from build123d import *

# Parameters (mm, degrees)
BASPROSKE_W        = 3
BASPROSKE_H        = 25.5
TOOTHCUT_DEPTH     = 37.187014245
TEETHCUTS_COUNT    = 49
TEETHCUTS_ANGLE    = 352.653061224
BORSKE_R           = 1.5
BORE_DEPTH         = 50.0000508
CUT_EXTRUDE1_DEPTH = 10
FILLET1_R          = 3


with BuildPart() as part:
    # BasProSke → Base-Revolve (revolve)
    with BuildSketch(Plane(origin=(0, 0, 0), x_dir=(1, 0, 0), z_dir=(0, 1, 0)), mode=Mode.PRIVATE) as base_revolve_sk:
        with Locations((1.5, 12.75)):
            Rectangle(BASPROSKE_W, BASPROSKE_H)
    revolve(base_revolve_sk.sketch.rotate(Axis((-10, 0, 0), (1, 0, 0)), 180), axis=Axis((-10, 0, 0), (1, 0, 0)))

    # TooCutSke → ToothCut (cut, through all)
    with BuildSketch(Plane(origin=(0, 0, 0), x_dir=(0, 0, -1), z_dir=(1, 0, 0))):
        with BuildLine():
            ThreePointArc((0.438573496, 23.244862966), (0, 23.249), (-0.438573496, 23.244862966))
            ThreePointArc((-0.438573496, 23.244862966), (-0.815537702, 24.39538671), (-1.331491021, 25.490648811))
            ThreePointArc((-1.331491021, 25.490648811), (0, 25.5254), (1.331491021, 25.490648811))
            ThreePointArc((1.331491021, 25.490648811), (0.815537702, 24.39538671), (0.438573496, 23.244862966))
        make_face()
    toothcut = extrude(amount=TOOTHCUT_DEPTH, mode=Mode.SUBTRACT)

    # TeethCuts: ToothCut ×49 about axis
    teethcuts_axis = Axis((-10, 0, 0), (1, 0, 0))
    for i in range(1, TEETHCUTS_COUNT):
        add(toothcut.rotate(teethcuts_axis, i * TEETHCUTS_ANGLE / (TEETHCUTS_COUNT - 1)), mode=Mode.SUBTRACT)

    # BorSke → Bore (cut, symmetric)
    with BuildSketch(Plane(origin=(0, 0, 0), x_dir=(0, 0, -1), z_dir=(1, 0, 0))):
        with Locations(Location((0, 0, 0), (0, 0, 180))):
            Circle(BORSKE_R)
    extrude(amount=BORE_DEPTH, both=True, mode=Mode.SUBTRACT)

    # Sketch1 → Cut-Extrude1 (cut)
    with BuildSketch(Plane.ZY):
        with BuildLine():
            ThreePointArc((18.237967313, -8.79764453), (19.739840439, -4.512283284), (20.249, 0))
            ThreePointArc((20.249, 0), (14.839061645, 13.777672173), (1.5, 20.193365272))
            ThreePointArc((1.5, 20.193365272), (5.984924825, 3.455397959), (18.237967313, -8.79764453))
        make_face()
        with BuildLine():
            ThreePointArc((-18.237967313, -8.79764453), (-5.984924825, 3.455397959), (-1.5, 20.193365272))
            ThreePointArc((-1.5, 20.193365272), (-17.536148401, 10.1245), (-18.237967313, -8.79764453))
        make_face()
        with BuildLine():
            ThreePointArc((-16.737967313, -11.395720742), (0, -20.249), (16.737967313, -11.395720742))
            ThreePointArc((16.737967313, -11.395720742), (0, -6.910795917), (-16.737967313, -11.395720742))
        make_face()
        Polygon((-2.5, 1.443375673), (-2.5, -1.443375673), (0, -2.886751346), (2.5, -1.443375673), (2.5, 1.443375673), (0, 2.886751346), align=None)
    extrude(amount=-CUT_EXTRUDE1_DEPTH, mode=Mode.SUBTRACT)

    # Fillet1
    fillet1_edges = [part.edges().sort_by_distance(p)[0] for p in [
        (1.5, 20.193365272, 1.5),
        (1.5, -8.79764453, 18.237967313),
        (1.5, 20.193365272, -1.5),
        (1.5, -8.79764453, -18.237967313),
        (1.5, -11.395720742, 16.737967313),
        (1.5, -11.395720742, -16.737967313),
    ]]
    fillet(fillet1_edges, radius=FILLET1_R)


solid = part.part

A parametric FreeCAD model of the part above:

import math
import FreeCAD as App
import Part
import Sketcher
from FreeCAD import Vector
Q = App.Units.Quantity


def edges_at(feature, points):
    """Names of the edges that pass closest to the given points."""
    edges = feature.Shape.Edges
    near = lambda p: min(range(len(edges)), key=lambda i: edges[i].distToShape(Part.Vertex(*p))[0])
    return sorted({f"Edge{near(p) + 1}" for p in points})

doc = App.newDocument("Part")
body = doc.addObject("PartDesign::Body", "Body")

sketch1 = body.newObject("Sketcher::SketchObject", "Sketch")
sketch1.AttachmentSupport = (doc.getObject("XZ_Plane"), [""])
sketch1.MapMode = "FlatFace"
sketch1.addGeometry([
    Part.LineSegment(Vector(0, -25.5, 0), Vector(0, 0, 0)),
    Part.LineSegment(Vector(0, 0, 0), Vector(3, 0, 0)),
    Part.LineSegment(Vector(3, 0, 0), Vector(3, -25.5, 0)),
    Part.LineSegment(Vector(3, -25.5, 0), Vector(0, -25.5, 0)),
], False)
sketch1.addConstraint([
    Sketcher.Constraint("Coincident", 0, 2, 1, 1),
    Sketcher.Constraint("Coincident", 1, 2, 2, 1),
    Sketcher.Constraint("Coincident", 2, 2, 3, 1),
    Sketcher.Constraint("Coincident", 3, 2, 0, 1),
    Sketcher.Constraint("Vertical", 0),
    Sketcher.Constraint("Horizontal", 1),
    Sketcher.Constraint("Vertical", 2),
    Sketcher.Constraint("Horizontal", 3),
    Sketcher.Constraint("Coincident", 0, 2, -1, 1),
    Sketcher.Constraint("DistanceX", 1, 1, 1, 2, 3.0),
    Sketcher.Constraint("DistanceY", 0, 1, 0, 2, 25.5),
])
revolution = body.newObject("PartDesign::Revolution", "Revolution")
revolution.Profile = sketch1
revolution.ReferenceAxis = (sketch1, ["H_Axis"])
revolution.Angle = 360

sketch2 = body.newObject("Sketcher::SketchObject", "Sketch001")
sketch2.AttachmentSupport = (doc.getObject("YZ_Plane"), [""])
sketch2.MapMode = "FlatFace"
sketch2.addGeometry([
    Part.ArcOfCircle(Part.Circle(Vector(0, 0, 0), Vector(0, 0, 1), 23.2), math.radians(-1.08), math.radians(1.08)),
    Part.ArcOfCircle(Part.Circle(Vector(20.8, -9.9, 0), Vector(0, 0, 1), 9.8), math.radians(61.23), math.radians(75.4)),
    Part.ArcOfCircle(Part.Circle(Vector(0, 0, 0), Vector(0, 0, 1), 25.5), math.radians(-2.99), math.radians(2.99)),
    Part.ArcOfCircle(Part.Circle(Vector(20.8, 9.9, 0), Vector(0, 0, 1), 9.8), math.radians(-75.4), math.radians(-61.23)),
], False)
sketch2.addConstraint([
    Sketcher.Constraint("Coincident", 0, 1, 1, 2),
    Sketcher.Constraint("Coincident", 1, 1, 2, 1),
    Sketcher.Constraint("Coincident", 2, 2, 3, 2),
    Sketcher.Constraint("Coincident", 3, 1, 0, 2),
    Sketcher.Constraint("Coincident", 0, 3, -1, 1),
    Sketcher.Constraint("Coincident", 2, 3, -1, 1),
    Sketcher.Constraint("Equal", 1, 3),
    Sketcher.Constraint("Symmetric", 1, 3, 3, 3, -1),
    Sketcher.Constraint("Radius", 1, 9.8),
    Sketcher.Constraint("Radius", 2, 25.5254),
    Sketcher.Constraint("Radius", 0, 23.249002),
    Sketcher.Constraint("DistanceX", -1, 1, 1, 3, 20.774631),
    Sketcher.Constraint("DistanceX", -1, 1, 1, 1, 25.490649),
])
pocket1 = body.newObject("PartDesign::Pocket", "Pocket")
pocket1.Profile = sketch2
pocket1.Type = "ThroughAll"
pocket1.Reversed = True
doc.recompute()

polarpattern = body.newObject("PartDesign::PolarPattern", "PolarPattern")
polarpattern.Originals = [pocket1]
polarpattern.Axis = (doc.getObject("X_Axis"), [""])
polarpattern.Angle = 360
polarpattern.Occurrences = 49
body.Tip = polarpattern

sketch3 = body.newObject("Sketcher::SketchObject", "Sketch002")
sketch3.AttachmentSupport = (doc.getObject("YZ_Plane"), [""])
sketch3.MapMode = "FlatFace"
sketch3.addGeometry(Part.Circle(Vector(0, 0, 0), Vector(0, 0, 1), 1.5), False)
sketch3.addConstraint([
    Sketcher.Constraint("Coincident", 0, 3, -1, 1),
    Sketcher.Constraint("Diameter", 0, 3.0),
])
pocket2 = body.newObject("PartDesign::Pocket", "Pocket001")
pocket2.Profile = sketch3
pocket2.Length = 100.000102
pocket2.Midplane = True

sketch4 = body.newObject("Sketcher::SketchObject", "Sketch003")
sketch4.AttachmentSupport = (doc.getObject("YZ_Plane"), [""])
sketch4.MapMode = "FlatFace"
sketch4.addGeometry([
    Part.ArcOfCircle(Part.Circle(Vector(0, 0, 0), Vector(0, 0, 1), 20.2), math.radians(90), math.radians(116)),
    Part.ArcOfCircle(Part.Circle(Vector(0, 0, 0), Vector(0, 0, 1), 20.2), math.radians(4), math.radians(90)),
    Part.ArcOfCircle(Part.Circle(Vector(20.2, 35, 0), Vector(0, 0, 1), 33.5), math.radians(-150), math.radians(-90)),
    Part.ArcOfCircle(Part.Circle(Vector(20.2, -35, 0), Vector(0, 0, 1), 33.5), math.radians(90), math.radians(150)),
    Part.ArcOfCircle(Part.Circle(Vector(0, 0, 0), Vector(0, 0, 1), 20.2), math.radians(-116), math.radians(-4)),
    Part.ArcOfCircle(Part.Circle(Vector(0, 0, 0), Vector(0, 0, 1), 20.2), math.radians(124), math.radians(236)),
    Part.ArcOfCircle(Part.Circle(Vector(-40.4, 0, 0), Vector(0, 0, 1), 33.5), math.radians(-30), math.radians(30)),
    Part.LineSegment(Vector(1.4, -2.5, 0), Vector(-1.4, -2.5, 0)),
    Part.LineSegment(Vector(-1.4, -2.5, 0), Vector(-2.9, 0, 0)),
    Part.LineSegment(Vector(-2.9, 0, 0), Vector(-1.4, 2.5, 0)),
    Part.LineSegment(Vector(-1.4, 2.5, 0), Vector(1.4, 2.5, 0)),
    Part.LineSegment(Vector(1.4, 2.5, 0), Vector(2.9, 0, 0)),
    Part.LineSegment(Vector(2.9, 0, 0), Vector(1.4, -2.5, 0)),
], False)
sketch4.addConstraint([
    Sketcher.Constraint("Tangent", 0, 1, 1, 2),
    Sketcher.Constraint("Coincident", 1, 1, 2, 2),
    Sketcher.Constraint("Coincident", 2, 1, 0, 2),
    Sketcher.Constraint("Coincident", 3, 1, 4, 2),
    Sketcher.Constraint("Coincident", 4, 1, 3, 2),
    Sketcher.Constraint("Coincident", 5, 1, 6, 2),
    Sketcher.Constraint("Coincident", 6, 1, 5, 2),
    Sketcher.Constraint("Coincident", 7, 2, 8, 1),
    Sketcher.Constraint("Coincident", 8, 2, 9, 1),
    Sketcher.Constraint("Coincident", 9, 2, 10, 1),
    Sketcher.Constraint("Coincident", 10, 2, 11, 1),
    Sketcher.Constraint("Coincident", 11, 2, 12, 1),
    Sketcher.Constraint("Coincident", 12, 2, 7, 1),
    Sketcher.Constraint("Horizontal", 7),
    Sketcher.Constraint("Horizontal", 10),
    Sketcher.Constraint("Coincident", 0, 3, -1, 1),
    Sketcher.Constraint("Coincident", 4, 3, -1, 1),
    Sketcher.Constraint("Coincident", 5, 3, -1, 1),
    Sketcher.Constraint("Equal", 0, 1),
    Sketcher.Constraint("Equal", 2, 3),
    Sketcher.Constraint("Equal", 1, 4),
    Sketcher.Constraint("Equal", 4, 5),
    Sketcher.Constraint("Equal", 3, 6),
    Sketcher.Constraint("Symmetric", 7, 2, 10, 2, -1, 1),
    Sketcher.Constraint("Symmetric", 8, 2, 11, 2, -1, 1),
    Sketcher.Constraint("Symmetric", 2, 3, 3, 3, -1),
    Sketcher.Constraint("PointOnObject", 6, 3, -1),
    Sketcher.Constraint("PointOnObject", 0, 1, -2),
    Sketcher.Constraint("PointOnObject", 8, 2, -1),
    Sketcher.Constraint("Parallel", 9, 12),
    Sketcher.Constraint("Vertical", 3, 3, 1, 1),
    Sketcher.Constraint("Vertical", 7, 2, 9, 2),
    Sketcher.Constraint("Angle", 8, Q("120 deg")),
    Sketcher.Constraint("Radius", 0, 20.249),
    Sketcher.Constraint("DistanceY", 3, 1, 1, 1, 3.0),
    Sketcher.Constraint("DistanceY", 7, 2, -1, 1, 2.5),
    Sketcher.Constraint("DistanceY", 5, 1, 2, 1, 1.5),
    Sketcher.Constraint("Radius", 2, 33.475935),
    Sketcher.Constraint("DistanceX", 7, 2, 7, 1, 2.886751),
])
pocket3 = body.newObject("PartDesign::Pocket", "Pocket002")
pocket3.Profile = sketch4
pocket3.Length = 10
pocket3.Reversed = True
doc.recompute()

fillet = body.newObject("PartDesign::Fillet", "Fillet")
fillet.Base = (pocket3, edges_at(pocket3, [
    (1.5, 20.193, 1.5),
    (1.5, -8.798, 18.238),
    (1.5, 20.193, -1.5),
    (1.5, -8.798, -18.238),
    (1.5, -11.396, 16.738),
    (1.5, -11.396, -16.738),
]))
fillet.Radius = 3

doc.recompute()
